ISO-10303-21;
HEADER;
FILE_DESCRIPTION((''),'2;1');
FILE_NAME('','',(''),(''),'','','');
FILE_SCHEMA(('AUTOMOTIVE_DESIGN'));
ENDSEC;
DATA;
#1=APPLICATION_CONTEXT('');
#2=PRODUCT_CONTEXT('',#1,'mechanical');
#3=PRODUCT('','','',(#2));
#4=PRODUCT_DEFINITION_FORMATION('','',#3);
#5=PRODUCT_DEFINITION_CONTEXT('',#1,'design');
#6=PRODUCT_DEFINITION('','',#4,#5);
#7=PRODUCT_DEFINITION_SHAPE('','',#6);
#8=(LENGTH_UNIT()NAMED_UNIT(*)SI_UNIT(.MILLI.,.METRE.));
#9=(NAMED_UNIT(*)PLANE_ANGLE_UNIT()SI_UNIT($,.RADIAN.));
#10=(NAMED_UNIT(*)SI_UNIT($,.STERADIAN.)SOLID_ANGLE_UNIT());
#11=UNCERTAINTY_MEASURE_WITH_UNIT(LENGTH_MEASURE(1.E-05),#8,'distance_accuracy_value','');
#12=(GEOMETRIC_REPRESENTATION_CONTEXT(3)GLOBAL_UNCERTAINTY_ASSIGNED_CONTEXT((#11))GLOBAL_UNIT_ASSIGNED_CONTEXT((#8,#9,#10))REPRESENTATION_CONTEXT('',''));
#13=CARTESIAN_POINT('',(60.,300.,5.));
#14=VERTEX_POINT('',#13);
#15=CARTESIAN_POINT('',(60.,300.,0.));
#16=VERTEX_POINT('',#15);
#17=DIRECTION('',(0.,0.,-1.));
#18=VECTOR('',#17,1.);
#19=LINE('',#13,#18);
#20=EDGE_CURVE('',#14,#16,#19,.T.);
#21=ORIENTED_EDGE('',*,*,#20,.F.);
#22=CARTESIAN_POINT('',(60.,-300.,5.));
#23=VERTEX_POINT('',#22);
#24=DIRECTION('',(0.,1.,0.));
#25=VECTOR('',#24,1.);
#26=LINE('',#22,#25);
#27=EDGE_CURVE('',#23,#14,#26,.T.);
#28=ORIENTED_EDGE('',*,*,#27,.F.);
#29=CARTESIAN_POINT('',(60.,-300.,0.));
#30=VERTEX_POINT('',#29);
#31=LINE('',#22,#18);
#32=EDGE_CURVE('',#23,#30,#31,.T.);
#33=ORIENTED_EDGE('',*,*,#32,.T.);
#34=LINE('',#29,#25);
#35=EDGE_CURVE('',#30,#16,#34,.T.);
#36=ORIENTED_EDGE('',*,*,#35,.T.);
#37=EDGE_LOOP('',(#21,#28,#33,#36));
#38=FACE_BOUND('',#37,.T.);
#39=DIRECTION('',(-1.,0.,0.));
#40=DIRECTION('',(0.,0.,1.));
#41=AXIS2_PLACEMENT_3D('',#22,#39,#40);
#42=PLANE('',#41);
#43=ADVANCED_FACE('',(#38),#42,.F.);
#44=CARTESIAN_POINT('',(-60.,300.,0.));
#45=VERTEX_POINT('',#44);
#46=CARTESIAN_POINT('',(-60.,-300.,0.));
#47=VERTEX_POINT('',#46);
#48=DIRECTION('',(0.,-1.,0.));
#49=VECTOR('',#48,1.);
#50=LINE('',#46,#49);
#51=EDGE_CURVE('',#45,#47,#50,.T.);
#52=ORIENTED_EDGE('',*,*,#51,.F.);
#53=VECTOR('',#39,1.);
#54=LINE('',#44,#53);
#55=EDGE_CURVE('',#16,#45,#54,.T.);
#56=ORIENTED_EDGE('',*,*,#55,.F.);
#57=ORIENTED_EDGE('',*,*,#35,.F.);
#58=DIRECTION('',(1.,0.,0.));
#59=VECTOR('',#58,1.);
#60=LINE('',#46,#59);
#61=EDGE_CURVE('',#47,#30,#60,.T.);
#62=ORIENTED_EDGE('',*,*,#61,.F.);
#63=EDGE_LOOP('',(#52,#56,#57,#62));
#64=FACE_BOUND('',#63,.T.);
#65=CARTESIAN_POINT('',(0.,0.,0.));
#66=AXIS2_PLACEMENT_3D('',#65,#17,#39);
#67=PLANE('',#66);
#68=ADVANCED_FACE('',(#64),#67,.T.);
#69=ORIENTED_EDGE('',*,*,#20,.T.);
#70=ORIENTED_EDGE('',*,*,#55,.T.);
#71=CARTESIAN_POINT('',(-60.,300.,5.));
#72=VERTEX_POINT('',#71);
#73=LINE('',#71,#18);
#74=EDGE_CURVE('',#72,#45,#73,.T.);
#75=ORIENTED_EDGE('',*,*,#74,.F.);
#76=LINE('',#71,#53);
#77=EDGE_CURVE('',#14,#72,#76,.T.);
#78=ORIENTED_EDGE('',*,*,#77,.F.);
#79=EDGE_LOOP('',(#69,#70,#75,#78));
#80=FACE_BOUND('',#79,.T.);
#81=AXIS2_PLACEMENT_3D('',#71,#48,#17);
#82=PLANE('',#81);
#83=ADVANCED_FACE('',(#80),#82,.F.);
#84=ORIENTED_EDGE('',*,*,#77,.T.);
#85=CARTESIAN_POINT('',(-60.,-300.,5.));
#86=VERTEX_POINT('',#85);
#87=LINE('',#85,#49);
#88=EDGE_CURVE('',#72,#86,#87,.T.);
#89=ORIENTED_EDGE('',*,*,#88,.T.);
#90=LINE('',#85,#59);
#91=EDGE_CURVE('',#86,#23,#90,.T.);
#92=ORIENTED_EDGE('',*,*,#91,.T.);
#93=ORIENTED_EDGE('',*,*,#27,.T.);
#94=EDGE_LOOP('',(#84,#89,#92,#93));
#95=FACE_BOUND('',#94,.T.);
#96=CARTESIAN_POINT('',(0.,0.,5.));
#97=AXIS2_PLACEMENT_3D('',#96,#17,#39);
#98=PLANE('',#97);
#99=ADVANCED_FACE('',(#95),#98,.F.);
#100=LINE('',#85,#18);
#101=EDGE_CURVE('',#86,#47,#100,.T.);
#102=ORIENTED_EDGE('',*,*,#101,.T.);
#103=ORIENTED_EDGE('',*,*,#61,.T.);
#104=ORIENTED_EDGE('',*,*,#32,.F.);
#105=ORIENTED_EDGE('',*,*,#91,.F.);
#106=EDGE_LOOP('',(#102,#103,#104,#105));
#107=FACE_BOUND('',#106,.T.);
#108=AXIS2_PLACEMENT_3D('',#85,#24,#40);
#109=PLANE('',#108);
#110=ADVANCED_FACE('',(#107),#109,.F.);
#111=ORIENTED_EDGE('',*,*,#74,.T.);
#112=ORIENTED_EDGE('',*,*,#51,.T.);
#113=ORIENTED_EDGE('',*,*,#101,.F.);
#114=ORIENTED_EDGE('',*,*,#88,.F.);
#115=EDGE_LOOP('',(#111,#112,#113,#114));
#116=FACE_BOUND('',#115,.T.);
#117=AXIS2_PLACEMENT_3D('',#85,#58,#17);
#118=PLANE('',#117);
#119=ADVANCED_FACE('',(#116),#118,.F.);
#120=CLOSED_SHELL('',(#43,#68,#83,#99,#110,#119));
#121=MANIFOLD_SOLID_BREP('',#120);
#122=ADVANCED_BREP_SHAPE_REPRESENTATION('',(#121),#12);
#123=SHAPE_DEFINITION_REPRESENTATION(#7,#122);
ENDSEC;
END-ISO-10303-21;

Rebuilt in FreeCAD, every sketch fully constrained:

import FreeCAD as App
import Part
import Sketcher

V = App.Vector
Q = App.Units.Quantity

doc = App.newDocument("Part")
body = doc.addObject("PartDesign::Body", "Body")

sketch1 = body.newObject("Sketcher::SketchObject", "Sketch")
sketch1.AttachmentSupport = (doc.getObject("XY_Plane"), [""])
sketch1.MapMode = "FlatFace"
sketch1.addGeometry([
    Part.LineSegment(V(-60, 300, 0), V(-60, -300, 0)),
    Part.LineSegment(V(-60, -300, 0), V(60, -300, 0)),
    Part.LineSegment(V(60, -300, 0), V(60, 300, 0)),
    Part.LineSegment(V(60, 300, 0), V(-60, 300, 0)),
], False)
sketch1.addConstraint([
    Sketcher.Constraint("Coincident", 0, 2, 1, 1),
    Sketcher.Constraint("Coincident", 1, 2, 2, 1),
    Sketcher.Constraint("Coincident", 2, 2, 3, 1),
    Sketcher.Constraint("Coincident", 3, 2, 0, 1),
    Sketcher.Constraint("Vertical", 0),
    Sketcher.Constraint("Horizontal", 1),
    Sketcher.Constraint("Vertical", 2),
    Sketcher.Constraint("Horizontal", 3),
    Sketcher.Constraint("Symmetric", 0, 2, 2, 2, -1, 1),
    Sketcher.Constraint("DistanceX", 1, 1, 1, 2, Q("120 mm")),
    Sketcher.Constraint("DistanceY", 0, 2, 0, 1, Q("600 mm")),
])
pad1 = body.newObject("PartDesign::Pad", "Pad")
pad1.Profile = sketch1
pad1.Length = 5

doc.recompute()
